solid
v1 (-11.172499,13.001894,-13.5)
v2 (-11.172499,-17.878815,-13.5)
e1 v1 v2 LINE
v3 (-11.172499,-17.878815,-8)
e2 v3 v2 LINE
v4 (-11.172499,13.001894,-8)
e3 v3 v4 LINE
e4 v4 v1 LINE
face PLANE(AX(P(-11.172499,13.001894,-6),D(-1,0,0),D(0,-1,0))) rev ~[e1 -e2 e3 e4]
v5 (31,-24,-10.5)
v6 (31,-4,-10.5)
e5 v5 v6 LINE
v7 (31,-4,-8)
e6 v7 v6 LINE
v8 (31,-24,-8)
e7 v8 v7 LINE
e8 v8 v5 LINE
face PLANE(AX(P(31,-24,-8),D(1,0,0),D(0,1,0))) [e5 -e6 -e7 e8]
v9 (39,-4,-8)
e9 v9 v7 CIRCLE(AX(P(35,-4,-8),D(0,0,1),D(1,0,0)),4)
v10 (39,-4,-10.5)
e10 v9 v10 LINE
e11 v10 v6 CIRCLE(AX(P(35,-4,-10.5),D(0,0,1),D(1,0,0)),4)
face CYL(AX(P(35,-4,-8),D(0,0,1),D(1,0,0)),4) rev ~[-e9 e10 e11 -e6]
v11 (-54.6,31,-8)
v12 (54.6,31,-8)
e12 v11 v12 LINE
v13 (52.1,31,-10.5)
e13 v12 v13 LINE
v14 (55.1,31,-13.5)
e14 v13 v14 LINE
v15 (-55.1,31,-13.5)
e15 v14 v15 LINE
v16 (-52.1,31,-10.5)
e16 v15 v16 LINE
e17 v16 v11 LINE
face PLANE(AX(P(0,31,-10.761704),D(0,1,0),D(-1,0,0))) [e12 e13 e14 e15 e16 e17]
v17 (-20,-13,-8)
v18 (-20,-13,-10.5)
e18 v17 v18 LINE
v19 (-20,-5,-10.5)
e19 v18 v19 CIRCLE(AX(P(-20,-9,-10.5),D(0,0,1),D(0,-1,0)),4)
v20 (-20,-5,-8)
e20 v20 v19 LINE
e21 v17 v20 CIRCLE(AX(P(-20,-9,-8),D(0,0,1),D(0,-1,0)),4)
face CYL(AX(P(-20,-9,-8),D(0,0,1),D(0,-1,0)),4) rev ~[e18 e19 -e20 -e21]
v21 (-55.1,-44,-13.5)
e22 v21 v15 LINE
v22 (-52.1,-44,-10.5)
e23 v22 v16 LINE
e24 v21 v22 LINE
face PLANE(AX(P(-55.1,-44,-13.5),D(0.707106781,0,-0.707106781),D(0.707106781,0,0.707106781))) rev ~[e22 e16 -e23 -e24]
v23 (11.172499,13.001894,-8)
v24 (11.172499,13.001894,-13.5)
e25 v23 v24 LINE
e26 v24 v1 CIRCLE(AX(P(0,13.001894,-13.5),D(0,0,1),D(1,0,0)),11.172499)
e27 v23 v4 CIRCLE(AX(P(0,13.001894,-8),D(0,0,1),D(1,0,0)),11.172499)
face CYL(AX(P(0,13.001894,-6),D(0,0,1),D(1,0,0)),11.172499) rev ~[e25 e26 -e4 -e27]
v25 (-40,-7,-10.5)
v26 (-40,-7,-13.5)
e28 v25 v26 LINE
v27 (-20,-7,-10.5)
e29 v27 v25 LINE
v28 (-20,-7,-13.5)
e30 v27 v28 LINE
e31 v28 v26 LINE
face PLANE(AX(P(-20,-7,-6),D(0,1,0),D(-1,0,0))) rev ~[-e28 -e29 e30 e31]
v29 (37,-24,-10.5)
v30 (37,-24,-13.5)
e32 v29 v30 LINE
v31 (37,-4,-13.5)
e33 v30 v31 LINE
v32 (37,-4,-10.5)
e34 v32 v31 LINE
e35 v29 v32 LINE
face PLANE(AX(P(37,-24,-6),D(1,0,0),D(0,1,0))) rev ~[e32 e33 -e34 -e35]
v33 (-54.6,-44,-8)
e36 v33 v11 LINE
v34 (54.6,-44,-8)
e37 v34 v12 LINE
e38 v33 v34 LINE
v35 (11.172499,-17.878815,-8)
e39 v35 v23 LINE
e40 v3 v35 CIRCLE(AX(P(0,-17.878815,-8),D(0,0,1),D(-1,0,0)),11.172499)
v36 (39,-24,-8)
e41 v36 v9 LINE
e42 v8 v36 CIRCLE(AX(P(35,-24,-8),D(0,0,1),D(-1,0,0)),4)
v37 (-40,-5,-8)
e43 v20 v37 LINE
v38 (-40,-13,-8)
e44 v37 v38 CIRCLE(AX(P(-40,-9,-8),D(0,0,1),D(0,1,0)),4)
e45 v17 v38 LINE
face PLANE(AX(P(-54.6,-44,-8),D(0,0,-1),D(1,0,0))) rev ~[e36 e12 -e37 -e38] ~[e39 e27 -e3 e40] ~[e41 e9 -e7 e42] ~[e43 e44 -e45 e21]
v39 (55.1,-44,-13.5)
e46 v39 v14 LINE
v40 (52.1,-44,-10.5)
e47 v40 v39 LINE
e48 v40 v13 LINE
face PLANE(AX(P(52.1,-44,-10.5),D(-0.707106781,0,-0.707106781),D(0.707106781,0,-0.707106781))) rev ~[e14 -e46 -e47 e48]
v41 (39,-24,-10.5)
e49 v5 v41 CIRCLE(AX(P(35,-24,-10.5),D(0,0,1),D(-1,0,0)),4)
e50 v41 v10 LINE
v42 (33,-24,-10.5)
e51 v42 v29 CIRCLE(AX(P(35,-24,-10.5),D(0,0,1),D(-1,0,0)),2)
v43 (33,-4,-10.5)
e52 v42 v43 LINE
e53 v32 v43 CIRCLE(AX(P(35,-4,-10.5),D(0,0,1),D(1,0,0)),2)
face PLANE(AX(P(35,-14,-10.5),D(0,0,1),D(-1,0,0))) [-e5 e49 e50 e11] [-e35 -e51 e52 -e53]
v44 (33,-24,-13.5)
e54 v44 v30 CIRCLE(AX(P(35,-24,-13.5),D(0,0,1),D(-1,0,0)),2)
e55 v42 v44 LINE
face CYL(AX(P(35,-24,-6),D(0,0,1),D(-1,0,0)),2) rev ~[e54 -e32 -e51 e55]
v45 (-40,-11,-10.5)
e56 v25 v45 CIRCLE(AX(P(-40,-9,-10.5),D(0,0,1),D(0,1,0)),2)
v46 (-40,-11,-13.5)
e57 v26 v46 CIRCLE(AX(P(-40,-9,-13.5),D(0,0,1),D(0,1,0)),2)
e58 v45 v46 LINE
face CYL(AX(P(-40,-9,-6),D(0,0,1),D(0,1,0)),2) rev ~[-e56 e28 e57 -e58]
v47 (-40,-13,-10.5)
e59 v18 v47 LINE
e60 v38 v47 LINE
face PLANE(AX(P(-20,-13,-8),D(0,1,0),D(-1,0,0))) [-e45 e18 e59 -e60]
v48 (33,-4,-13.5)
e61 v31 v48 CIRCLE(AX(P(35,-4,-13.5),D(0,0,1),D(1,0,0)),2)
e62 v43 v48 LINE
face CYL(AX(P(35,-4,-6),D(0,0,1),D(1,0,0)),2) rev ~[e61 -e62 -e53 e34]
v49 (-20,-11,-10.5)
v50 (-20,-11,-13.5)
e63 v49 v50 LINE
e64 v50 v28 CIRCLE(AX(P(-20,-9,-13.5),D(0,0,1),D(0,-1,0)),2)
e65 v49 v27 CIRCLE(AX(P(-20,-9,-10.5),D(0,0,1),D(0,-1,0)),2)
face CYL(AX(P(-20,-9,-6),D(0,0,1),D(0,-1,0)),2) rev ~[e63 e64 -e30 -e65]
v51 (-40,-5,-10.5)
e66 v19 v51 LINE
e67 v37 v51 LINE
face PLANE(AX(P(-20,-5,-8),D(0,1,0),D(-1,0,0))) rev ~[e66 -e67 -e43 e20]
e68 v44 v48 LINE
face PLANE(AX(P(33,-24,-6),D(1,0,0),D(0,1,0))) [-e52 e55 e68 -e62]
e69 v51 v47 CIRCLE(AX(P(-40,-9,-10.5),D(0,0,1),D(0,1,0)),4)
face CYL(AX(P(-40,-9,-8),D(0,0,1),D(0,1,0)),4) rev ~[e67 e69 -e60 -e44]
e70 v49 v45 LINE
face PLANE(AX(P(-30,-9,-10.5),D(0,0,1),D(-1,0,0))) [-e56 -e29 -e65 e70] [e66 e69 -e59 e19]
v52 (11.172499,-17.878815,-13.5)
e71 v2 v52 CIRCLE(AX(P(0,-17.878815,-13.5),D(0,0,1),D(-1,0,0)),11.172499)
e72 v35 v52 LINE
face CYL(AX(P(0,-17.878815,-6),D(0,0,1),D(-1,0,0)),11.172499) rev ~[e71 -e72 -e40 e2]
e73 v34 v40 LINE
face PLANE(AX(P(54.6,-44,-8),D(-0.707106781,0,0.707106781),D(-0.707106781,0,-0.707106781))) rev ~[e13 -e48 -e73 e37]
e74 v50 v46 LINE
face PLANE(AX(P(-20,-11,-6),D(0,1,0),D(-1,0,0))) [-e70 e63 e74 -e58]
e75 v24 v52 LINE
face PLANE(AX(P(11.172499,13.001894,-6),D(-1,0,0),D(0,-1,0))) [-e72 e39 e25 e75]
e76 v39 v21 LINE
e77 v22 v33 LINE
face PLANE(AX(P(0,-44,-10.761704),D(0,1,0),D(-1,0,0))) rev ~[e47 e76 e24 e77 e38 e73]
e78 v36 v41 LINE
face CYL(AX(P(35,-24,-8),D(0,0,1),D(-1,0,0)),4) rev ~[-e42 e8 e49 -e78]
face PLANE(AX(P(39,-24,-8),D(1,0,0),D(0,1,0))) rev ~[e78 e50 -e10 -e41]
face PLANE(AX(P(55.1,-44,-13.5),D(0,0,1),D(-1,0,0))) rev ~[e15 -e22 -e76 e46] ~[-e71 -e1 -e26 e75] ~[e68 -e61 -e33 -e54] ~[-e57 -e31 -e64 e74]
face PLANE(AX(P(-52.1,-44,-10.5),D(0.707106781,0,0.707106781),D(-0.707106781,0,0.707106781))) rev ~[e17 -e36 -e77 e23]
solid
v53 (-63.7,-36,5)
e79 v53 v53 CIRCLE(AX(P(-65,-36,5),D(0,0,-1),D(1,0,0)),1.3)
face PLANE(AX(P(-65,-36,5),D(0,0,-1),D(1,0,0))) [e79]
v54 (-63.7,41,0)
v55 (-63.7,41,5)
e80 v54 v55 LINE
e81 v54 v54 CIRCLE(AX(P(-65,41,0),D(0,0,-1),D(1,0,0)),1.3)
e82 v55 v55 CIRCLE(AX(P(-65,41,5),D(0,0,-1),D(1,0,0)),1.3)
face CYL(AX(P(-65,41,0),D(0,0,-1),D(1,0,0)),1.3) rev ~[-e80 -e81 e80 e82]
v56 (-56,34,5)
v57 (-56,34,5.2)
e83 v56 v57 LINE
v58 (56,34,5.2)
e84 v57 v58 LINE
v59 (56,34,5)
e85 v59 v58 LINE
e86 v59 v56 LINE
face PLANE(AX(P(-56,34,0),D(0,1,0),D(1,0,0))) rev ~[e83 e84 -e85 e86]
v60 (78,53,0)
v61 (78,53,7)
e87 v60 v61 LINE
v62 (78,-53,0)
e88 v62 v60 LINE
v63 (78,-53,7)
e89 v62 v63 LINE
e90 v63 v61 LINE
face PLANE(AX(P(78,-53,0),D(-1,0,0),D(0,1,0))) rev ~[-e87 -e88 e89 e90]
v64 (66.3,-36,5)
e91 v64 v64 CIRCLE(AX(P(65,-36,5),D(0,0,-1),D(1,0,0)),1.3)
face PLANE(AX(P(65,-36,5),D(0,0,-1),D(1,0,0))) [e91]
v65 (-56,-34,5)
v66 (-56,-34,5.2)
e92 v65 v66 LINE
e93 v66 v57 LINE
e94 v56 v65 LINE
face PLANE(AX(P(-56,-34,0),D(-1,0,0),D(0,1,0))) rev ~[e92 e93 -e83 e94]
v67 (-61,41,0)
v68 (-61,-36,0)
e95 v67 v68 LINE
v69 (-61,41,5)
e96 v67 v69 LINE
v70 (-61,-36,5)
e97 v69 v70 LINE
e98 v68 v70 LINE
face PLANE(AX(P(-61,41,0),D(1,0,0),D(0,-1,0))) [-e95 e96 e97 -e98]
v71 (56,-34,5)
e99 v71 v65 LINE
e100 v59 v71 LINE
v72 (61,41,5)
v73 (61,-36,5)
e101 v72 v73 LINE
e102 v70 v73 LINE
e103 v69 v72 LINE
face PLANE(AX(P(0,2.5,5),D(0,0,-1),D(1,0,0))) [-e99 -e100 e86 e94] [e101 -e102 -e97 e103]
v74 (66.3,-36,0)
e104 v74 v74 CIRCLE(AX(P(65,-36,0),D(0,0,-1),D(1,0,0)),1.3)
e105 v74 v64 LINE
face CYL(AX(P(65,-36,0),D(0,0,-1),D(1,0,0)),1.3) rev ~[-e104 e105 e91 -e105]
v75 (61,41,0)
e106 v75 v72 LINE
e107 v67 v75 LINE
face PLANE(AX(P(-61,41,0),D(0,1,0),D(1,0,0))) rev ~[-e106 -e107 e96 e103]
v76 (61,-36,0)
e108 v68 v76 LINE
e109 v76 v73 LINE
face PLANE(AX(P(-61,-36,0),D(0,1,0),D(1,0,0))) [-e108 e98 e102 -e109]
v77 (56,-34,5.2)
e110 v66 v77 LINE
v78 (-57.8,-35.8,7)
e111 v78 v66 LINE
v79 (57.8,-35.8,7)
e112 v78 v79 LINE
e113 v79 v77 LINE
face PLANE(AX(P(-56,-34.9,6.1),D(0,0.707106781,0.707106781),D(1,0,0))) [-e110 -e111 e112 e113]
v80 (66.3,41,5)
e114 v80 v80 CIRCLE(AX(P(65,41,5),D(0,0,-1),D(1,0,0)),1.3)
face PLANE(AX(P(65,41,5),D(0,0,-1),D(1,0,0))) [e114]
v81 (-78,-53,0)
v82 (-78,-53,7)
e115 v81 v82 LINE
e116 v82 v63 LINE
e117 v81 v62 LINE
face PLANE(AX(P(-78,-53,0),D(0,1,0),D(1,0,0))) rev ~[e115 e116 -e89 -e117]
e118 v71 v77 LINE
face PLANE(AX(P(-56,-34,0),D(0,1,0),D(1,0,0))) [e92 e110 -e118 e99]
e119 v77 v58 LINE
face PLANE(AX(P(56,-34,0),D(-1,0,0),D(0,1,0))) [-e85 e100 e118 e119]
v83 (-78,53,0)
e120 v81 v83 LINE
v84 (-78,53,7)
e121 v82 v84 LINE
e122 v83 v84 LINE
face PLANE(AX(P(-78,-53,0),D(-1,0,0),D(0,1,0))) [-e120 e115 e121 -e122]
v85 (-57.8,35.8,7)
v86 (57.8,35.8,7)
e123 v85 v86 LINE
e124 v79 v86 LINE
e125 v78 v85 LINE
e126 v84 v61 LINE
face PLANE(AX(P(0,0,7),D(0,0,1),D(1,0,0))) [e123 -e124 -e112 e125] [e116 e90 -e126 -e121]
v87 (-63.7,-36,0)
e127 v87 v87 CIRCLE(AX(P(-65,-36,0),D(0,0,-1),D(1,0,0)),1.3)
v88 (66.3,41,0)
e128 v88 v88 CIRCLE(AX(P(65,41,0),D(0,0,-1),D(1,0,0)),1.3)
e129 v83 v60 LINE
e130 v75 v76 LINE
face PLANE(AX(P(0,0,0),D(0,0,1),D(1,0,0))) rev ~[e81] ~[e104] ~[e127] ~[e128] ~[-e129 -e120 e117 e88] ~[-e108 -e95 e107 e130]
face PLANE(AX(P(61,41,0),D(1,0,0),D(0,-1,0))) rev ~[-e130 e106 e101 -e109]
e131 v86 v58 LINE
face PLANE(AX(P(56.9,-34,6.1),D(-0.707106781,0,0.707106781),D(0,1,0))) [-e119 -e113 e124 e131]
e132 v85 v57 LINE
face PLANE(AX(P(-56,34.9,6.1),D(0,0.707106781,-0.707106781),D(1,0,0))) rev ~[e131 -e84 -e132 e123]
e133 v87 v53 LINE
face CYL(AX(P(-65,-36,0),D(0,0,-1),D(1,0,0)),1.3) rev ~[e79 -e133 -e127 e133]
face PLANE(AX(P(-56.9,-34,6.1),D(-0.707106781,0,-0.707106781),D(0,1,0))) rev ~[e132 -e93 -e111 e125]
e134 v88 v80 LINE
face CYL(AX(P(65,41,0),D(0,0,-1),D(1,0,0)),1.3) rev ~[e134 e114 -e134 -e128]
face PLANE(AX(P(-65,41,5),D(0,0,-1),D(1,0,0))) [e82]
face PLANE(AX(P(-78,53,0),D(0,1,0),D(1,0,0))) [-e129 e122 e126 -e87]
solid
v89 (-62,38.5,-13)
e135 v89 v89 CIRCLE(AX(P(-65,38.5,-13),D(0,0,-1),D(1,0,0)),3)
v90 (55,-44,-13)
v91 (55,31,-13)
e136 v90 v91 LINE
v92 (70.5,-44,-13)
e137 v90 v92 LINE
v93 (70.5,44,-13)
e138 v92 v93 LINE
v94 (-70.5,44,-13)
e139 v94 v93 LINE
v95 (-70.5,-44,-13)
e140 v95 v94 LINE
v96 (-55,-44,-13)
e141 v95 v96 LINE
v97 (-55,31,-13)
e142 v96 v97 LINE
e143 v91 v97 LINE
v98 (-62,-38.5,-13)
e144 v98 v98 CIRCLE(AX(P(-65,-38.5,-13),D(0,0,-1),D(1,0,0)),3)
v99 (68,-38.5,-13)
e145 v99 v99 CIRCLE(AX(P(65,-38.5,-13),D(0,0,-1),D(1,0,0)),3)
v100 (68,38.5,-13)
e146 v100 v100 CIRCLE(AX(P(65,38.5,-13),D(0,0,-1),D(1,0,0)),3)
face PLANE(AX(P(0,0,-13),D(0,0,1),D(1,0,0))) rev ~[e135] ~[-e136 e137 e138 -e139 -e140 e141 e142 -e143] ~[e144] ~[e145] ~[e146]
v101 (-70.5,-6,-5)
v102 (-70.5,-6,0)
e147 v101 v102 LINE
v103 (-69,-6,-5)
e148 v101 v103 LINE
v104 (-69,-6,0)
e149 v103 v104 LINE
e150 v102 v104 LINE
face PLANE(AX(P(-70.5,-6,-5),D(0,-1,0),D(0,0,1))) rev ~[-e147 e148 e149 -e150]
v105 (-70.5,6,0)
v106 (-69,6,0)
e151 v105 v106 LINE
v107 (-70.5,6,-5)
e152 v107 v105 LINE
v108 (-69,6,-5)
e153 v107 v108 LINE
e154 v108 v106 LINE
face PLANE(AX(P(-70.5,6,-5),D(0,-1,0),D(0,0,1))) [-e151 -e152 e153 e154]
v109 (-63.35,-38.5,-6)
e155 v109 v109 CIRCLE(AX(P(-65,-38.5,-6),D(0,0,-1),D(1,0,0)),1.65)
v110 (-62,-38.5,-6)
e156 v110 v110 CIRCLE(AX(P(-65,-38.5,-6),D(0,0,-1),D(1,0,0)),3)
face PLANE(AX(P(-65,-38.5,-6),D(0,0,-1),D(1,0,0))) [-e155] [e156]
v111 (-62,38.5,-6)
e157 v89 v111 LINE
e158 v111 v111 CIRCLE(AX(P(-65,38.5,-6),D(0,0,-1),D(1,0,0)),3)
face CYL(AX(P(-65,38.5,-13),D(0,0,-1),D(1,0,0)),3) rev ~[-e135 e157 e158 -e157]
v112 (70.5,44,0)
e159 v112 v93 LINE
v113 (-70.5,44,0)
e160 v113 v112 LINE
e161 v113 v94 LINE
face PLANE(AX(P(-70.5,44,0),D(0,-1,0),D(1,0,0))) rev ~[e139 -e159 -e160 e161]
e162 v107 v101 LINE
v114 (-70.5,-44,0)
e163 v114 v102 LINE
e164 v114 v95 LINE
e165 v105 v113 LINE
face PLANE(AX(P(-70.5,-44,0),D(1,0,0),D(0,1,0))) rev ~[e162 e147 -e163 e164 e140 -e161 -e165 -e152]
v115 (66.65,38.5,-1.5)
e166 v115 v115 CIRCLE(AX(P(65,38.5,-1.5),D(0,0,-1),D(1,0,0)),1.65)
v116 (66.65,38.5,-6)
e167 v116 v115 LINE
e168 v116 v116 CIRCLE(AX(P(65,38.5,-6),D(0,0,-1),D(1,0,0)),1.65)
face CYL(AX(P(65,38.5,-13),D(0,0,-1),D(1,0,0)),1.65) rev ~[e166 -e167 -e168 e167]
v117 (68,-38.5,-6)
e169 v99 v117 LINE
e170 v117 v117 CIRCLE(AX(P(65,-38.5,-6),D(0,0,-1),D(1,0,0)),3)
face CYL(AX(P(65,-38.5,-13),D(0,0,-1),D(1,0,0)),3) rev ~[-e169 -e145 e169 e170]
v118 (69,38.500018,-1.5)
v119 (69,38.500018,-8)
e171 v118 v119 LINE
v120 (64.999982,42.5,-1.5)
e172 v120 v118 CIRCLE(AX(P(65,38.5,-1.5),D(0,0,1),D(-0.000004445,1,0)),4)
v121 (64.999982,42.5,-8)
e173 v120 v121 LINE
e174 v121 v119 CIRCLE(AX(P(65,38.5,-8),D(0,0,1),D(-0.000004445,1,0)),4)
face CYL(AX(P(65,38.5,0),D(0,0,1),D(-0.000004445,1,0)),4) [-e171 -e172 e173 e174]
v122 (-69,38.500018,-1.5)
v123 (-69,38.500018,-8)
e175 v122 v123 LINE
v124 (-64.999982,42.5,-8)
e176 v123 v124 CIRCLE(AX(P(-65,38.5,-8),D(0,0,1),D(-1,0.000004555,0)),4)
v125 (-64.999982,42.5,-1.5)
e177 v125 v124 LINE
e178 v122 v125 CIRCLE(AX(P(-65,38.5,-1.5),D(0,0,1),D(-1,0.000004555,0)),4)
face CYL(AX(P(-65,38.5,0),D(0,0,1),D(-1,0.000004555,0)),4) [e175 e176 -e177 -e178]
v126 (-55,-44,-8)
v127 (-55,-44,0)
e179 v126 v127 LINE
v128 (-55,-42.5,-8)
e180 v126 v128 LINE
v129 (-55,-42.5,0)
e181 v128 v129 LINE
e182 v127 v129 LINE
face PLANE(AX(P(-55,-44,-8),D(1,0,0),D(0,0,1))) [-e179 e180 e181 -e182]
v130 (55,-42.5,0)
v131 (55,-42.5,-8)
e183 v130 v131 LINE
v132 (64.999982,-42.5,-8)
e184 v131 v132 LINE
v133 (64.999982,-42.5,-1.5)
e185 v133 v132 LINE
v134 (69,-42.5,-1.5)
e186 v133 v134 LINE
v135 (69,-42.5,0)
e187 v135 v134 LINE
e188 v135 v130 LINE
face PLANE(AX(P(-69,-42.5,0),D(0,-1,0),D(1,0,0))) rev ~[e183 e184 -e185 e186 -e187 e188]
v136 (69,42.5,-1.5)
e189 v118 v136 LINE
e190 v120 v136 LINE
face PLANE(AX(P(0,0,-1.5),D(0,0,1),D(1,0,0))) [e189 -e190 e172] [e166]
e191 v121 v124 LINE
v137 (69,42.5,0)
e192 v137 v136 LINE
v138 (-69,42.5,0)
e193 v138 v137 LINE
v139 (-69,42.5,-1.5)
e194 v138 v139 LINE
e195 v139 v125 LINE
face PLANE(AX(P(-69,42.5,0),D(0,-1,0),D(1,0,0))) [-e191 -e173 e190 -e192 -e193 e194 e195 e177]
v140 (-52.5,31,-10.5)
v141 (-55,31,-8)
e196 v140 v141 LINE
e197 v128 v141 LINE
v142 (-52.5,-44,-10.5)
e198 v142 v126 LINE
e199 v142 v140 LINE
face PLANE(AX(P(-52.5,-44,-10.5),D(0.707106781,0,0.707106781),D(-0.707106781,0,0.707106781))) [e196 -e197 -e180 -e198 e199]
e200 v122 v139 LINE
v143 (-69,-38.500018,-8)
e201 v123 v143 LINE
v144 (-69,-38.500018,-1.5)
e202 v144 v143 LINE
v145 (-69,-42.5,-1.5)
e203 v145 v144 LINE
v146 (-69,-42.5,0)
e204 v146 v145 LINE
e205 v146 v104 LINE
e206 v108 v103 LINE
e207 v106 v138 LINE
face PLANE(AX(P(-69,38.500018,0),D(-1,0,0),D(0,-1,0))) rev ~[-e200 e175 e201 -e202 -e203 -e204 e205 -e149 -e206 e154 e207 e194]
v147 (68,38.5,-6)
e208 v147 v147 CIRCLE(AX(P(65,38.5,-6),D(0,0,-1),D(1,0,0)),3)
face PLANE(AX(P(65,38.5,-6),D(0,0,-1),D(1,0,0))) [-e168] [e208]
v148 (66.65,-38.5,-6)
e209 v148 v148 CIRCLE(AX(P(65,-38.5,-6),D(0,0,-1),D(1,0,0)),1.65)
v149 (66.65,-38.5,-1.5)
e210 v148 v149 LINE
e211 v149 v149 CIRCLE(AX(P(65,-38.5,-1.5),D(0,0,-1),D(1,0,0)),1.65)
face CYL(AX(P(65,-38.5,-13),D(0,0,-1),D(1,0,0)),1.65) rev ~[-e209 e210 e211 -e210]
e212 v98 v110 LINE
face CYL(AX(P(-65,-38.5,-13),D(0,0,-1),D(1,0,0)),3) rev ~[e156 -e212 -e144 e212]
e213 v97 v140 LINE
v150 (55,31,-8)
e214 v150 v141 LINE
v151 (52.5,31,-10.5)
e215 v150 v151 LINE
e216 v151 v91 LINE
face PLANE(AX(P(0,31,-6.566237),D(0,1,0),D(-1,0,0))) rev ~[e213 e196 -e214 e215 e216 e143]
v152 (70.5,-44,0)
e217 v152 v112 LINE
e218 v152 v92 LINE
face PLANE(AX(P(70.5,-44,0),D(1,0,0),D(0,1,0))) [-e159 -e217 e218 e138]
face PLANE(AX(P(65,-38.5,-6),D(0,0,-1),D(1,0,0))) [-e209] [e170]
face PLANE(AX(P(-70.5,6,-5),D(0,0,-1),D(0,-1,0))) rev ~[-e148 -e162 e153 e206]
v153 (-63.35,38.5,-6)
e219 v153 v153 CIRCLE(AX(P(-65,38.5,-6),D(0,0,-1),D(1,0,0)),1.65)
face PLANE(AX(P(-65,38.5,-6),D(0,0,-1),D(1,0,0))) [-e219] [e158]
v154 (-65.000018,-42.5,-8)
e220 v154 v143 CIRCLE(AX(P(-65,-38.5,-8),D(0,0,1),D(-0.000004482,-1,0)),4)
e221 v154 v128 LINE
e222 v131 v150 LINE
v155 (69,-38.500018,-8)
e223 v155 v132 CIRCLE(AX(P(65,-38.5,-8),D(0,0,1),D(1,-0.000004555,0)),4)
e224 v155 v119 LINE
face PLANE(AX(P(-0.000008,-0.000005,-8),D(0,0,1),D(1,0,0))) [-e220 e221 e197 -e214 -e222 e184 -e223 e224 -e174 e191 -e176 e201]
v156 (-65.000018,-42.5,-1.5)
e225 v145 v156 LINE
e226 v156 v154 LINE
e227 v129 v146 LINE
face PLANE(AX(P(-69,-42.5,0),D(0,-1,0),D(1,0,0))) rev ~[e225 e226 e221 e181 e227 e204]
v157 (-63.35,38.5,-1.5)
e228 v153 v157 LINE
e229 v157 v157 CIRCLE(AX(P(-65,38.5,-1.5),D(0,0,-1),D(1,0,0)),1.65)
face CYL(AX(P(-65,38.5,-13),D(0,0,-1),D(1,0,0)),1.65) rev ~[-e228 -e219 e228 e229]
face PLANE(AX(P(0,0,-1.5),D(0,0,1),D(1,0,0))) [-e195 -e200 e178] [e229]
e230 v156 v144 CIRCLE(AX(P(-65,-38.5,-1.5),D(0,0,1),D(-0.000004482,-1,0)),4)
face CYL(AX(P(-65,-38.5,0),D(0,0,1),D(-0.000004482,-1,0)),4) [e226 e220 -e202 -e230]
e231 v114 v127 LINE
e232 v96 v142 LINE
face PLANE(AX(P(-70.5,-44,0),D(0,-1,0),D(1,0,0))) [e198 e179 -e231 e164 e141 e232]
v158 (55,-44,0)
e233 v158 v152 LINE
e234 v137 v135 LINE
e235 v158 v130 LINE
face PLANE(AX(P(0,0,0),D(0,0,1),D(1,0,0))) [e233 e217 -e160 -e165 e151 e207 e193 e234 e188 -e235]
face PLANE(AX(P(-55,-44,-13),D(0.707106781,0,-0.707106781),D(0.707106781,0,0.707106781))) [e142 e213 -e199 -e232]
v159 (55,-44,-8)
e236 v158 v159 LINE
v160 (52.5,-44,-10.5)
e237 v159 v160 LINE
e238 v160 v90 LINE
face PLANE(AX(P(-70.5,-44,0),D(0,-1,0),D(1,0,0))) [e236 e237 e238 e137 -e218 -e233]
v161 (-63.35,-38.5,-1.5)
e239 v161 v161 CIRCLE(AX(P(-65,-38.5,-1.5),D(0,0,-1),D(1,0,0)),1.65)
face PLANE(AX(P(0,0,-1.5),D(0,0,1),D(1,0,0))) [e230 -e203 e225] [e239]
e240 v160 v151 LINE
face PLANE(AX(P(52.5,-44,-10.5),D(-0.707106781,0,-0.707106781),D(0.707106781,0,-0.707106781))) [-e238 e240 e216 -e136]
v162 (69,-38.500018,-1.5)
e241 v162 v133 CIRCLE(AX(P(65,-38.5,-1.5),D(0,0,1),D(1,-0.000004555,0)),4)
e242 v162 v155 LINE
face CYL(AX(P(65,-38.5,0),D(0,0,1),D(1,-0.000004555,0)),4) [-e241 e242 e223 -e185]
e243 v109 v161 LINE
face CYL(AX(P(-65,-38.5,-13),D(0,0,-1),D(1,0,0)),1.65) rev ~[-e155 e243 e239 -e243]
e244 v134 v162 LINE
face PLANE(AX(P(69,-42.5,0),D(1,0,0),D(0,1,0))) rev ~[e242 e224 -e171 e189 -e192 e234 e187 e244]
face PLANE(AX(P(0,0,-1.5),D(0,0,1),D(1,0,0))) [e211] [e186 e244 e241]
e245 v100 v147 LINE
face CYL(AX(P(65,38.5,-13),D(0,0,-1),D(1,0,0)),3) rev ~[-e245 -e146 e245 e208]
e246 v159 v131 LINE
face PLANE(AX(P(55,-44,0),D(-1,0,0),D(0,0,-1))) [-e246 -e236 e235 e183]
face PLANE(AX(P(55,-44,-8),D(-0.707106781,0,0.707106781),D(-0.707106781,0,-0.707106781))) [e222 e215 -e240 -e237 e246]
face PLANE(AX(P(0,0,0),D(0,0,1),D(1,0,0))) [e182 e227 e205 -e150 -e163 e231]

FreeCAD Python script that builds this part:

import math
import FreeCAD as App
import Part
import Sketcher
Q = App.Units.Quantity


def edges_at(feature, points):
    """Names of the edges that pass closest to the given points."""
    edges = feature.Shape.Edges
    near = lambda p: min(range(len(edges)), key=lambda i: edges[i].distToShape(Part.Vertex(*p))[0])
    return sorted({f"Edge{near(p) + 1}" for p in points})


def add_polygon(sketch, points):
    """Adds a closed chain of lines whose ends are joined by coincident constraints."""
    first, n = sketch.GeometryCount, len(points)
    for a, b in zip(points, points[1:] + points[:1]):
        sketch.addGeometry(Part.LineSegment(App.Vector(*a, 0), App.Vector(*b, 0)), False)
    for i in range(n):
        sketch.addConstraint(Sketcher.Constraint("Coincident", first + i, 2, first + (i + 1) % n, 1))

doc = App.newDocument("Part")
params = doc.addObject("Spreadsheet::Sheet", "Params")
for row, (alias, value) in enumerate([
    ("sketch1_width", "156 mm"),
    ("sketch1_width2", "112 mm"),
    ("sketch1_height", "106 mm"),
    ("sketch1_height2", "68 mm"),
    ("pad1_length", "7 mm"),
    ("sketch2_diameter", "2.6 mm"),
    ("sketch2_width", "122 mm"),
    ("sketch2_height", "77 mm"),
    ("pocket1_length", "5 mm"),
    ("chamfer_size", "1.8 mm"),
    ("sketch3_width", "141 mm"),
    ("sketch3_height", "88 mm"),
    ("pad2_length", "13 mm"),
    ("sketch4_radius", "4 mm"),
    ("sketch4_width", "130 mm"),
    ("pocket2_length", "8 mm"),
    ("sketch5_width", "138 mm"),
    ("sketch5_height", "85 mm"),
    ("pocket3_length", "1.5 mm"),
    ("sketch6_diameter", "3.3 mm"),
    ("sketch7_diameter", "6 mm"),
    ("pocket5_length", "7 mm"),
    ("sketch8_width", "110 mm"),
    ("sketch8_height", "8 mm"),
    ("pocket6_length", "75 mm"),
    ("sketch9_width", "12 mm"),
    ("sketch9_height", "5 mm"),
    ("pocket7_length", "1.5 mm"),
    ("sketch10_width", "109.2 mm"),
    ("sketch10_width2", "110.2 mm"),
    ("pad3_length", "75 mm"),
    ("sketch11_radius", "4 mm"),
    ("sketch11_width", "20 mm"),
    ("pocket8_length", "2.5 mm"),
    ("sketch12_radius", "2 mm"),
    ("sketch12_width", "20 mm"),
], start=1):
    params.set(f"A{row}", alias)
    params.set(f"B{row}", "=" + value)
    params.setAlias(f"B{row}", alias)

body = doc.addObject("PartDesign::Body", "Body")

sketch1 = body.newObject("Sketcher::SketchObject", "Sketch")
sketch1.AttachmentSupport = (doc.getObject("XY_Plane"), [""])
sketch1.MapMode = "FlatFace"
add_polygon(sketch1, [(-78, 53), (-78, -53), (78, -53), (78, 53)])
add_polygon(sketch1, [(56, -34), (-56, -34), (-56, 34), (56, 34)])
sketch1.addConstraint(Sketcher.Constraint("Vertical", 0))
sketch1.addConstraint(Sketcher.Constraint("Horizontal", 1))
sketch1.addConstraint(Sketcher.Constraint("Vertical", 2))
sketch1.addConstraint(Sketcher.Constraint("Horizontal", 3))
sketch1.addConstraint(Sketcher.Constraint("Horizontal", 4))
sketch1.addConstraint(Sketcher.Constraint("Vertical", 5))
sketch1.addConstraint(Sketcher.Constraint("Horizontal", 6))
sketch1.addConstraint(Sketcher.Constraint("Vertical", 7))
sketch1.addConstraint(Sketcher.Constraint("Symmetric", 0, 2, 2, 2, -1, 1))
sketch1.addConstraint(Sketcher.Constraint("Symmetric", 4, 2, 6, 2, -1, 1))
sketch1.addConstraint(Sketcher.Constraint("DistanceX", 1, 1, 1, 2, Q("156 mm")))
sketch1.addConstraint(Sketcher.Constraint("DistanceX", 4, 2, 4, 1, Q("112 mm")))
sketch1.addConstraint(Sketcher.Constraint("DistanceY", 0, 2, 0, 1, Q("106 mm")))
sketch1.addConstraint(Sketcher.Constraint("DistanceY", 5, 1, 5, 2, Q("68 mm")))
sketch1.setExpression("Constraints[18]", "Params.sketch1_width")
sketch1.setExpression("Constraints[19]", "Params.sketch1_width2")
sketch1.setExpression("Constraints[20]", "Params.sketch1_height")
sketch1.setExpression("Constraints[21]", "Params.sketch1_height2")
pad1 = body.newObject("PartDesign::Pad", "Pad")
pad1.Profile = sketch1
pad1.setExpression("Length", "Params.pad1_length")

sketch2 = body.newObject("Sketcher::SketchObject", "Sketch001")
sketch2.AttachmentSupport = (doc.getObject("XY_Plane"), [""])
sketch2.MapMode = "FlatFace"
sketch2.addGeometry(Part.Circle(App.Vector(-65, -36, 0), App.Vector(0, 0, 1), 1.3), False)
sketch2.addGeometry(Part.Circle(App.Vector(65, -36, 0), App.Vector(0, 0, 1), 1.3), False)
sketch2.addGeometry(Part.Circle(App.Vector(-65, 41, 0), App.Vector(0, 0, 1), 1.3), False)
sketch2.addGeometry(Part.Circle(App.Vector(65, 41, 0), App.Vector(0, 0, 1), 1.3), False)
add_polygon(sketch2, [(-61, -36), (-61, 41), (61, 41), (61, -36)])
sketch2.addConstraint(Sketcher.Constraint("Vertical", 4))
sketch2.addConstraint(Sketcher.Constraint("Horizontal", 5))
sketch2.addConstraint(Sketcher.Constraint("Vertical", 6))
sketch2.addConstraint(Sketcher.Constraint("Horizontal", 7))
sketch2.addConstraint(Sketcher.Constraint("Equal", 0, 1))
sketch2.addConstraint(Sketcher.Constraint("Equal", 1, 2))
sketch2.addConstraint(Sketcher.Constraint("Equal", 2, 3))
sketch2.addConstraint(Sketcher.Constraint("Symmetric", 0, 3, 1, 3, -2))
sketch2.addConstraint(Sketcher.Constraint("Symmetric", 2, 3, 3, 3, -2))
sketch2.addConstraint(Sketcher.Constraint("Horizontal", 3, 3, 4, 2))
sketch2.addConstraint(Sketcher.Constraint("Horizontal", 1, 3, 6, 2))
sketch2.addConstraint(Sketcher.Constraint("Vertical", 0, 3, 2, 3))
sketch2.addConstraint(Sketcher.Constraint("Diameter", 0, Q("2.6 mm")))
sketch2.addConstraint(Sketcher.Constraint("DistanceX", 5, 1, 5, 2, Q("122 mm")))
sketch2.addConstraint(Sketcher.Constraint("DistanceY", 4, 1, 4, 2, Q("77 mm")))
sketch2.addConstraint(Sketcher.Constraint("DistanceX", 0, 3, -1, 1, Q("65 mm")))
sketch2.addConstraint(Sketcher.Constraint("DistanceY", 0, 3, -1, 1, Q("36 mm")))
sketch2.addConstraint(Sketcher.Constraint("DistanceX", 4, 2, -1, 1, Q("61 mm")))
sketch2.setExpression("Constraints[16]", "Params.sketch2_diameter")
sketch2.setExpression("Constraints[17]", "Params.sketch2_width")
sketch2.setExpression("Constraints[18]", "Params.sketch2_height")
pocket1 = body.newObject("PartDesign::Pocket", "Pocket")
pocket1.Profile = sketch2
pocket1.setExpression("Length", "Params.pocket1_length")
pocket1.Reversed = True
doc.recompute()

chamfer = body.newObject("PartDesign::Chamfer", "Chamfer")
chamfer.Base = (pocket1, edges_at(pocket1, [
    (-56, 0, 7),
    (0, 34, 7),
    (56, 0, 7),
    (0, -34, 7),
]))
chamfer.setExpression("Size", "Params.chamfer_size")
body2 = doc.addObject("PartDesign::Body", "Body001")

sketch3 = body2.newObject("Sketcher::SketchObject", "Sketch002")
sketch3.AttachmentSupport = (doc.getObject("XY_Plane001"), [""])
sketch3.MapMode = "FlatFace"
add_polygon(sketch3, [(-70, 44), (-70, -44), (70, -44), (70, 44)])
sketch3.addConstraint(Sketcher.Constraint("Vertical", 0))
sketch3.addConstraint(Sketcher.Constraint("Horizontal", 1))
sketch3.addConstraint(Sketcher.Constraint("Vertical", 2))
sketch3.addConstraint(Sketcher.Constraint("Horizontal", 3))
sketch3.addConstraint(Sketcher.Constraint("Symmetric", 0, 2, 2, 2, -1, 1))
sketch3.addConstraint(Sketcher.Constraint("DistanceX", 1, 1, 1, 2, Q("141 mm")))
sketch3.addConstraint(Sketcher.Constraint("DistanceY", 0, 2, 0, 1, Q("88 mm")))
sketch3.setExpression("Constraints[9]", "Params.sketch3_width")
sketch3.setExpression("Constraints[10]", "Params.sketch3_height")
pad2 = body2.newObject("PartDesign::Pad", "Pad001")
pad2.Profile = sketch3
pad2.setExpression("Length", "Params.pad2_length")
pad2.Reversed = True

sketch4 = body2.newObject("Sketcher::SketchObject", "Sketch003")
sketch4.AttachmentSupport = (doc.getObject("XY_Plane001"), [""])
sketch4.MapMode = "FlatFace"
sketch4.addGeometry(Part.LineSegment(App.Vector(-69, 38.5, 0), App.Vector(-69, -38.5, 0)), False)
sketch4.addGeometry(Part.ArcOfCircle(Part.Circle(App.Vector(-65, -38.5, 0), App.Vector(0, 0, 1), 4), math.radians(-90), math.radians(180)), False)
sketch4.addGeometry(Part.LineSegment(App.Vector(-65, -42.5, 0), App.Vector(65, -42.5, 0)), False)
sketch4.addGeometry(Part.ArcOfCircle(Part.Circle(App.Vector(65, -38.5, 0), App.Vector(0, 0, 1), 4), math.radians(0), math.radians(270)), False)
sketch4.addGeometry(Part.LineSegment(App.Vector(69, -38.5, 0), App.Vector(69, 38.5, 0)), False)
sketch4.addGeometry(Part.ArcOfCircle(Part.Circle(App.Vector(65, 38.5, 0), App.Vector(0, 0, 1), 4), math.radians(90), math.radians(360)), False)
sketch4.addGeometry(Part.LineSegment(App.Vector(65, 42.5, 0), App.Vector(-65, 42.5, 0)), False)
sketch4.addGeometry(Part.ArcOfCircle(Part.Circle(App.Vector(-65, 38.5, 0), App.Vector(0, 0, 1), 4), math.radians(180), math.radians(450)), False)
sketch4.addConstraint(Sketcher.Constraint("Coincident", 0, 2, 1, 2))
sketch4.addConstraint(Sketcher.Constraint("Coincident", 1, 1, 2, 1))
sketch4.addConstraint(Sketcher.Constraint("Coincident", 2, 2, 3, 2))
sketch4.addConstraint(Sketcher.Constraint("Coincident", 3, 1, 4, 1))
sketch4.addConstraint(Sketcher.Constraint("Coincident", 4, 2, 5, 2))
sketch4.addConstraint(Sketcher.Constraint("Coincident", 5, 1, 6, 1))
sketch4.addConstraint(Sketcher.Constraint("Coincident", 6, 2, 7, 2))
sketch4.addConstraint(Sketcher.Constraint("Coincident", 7, 1, 0, 1))
sketch4.addConstraint(Sketcher.Constraint("Vertical", 0))
sketch4.addConstraint(Sketcher.Constraint("Horizontal", 2))
sketch4.addConstraint(Sketcher.Constraint("Vertical", 4))
sketch4.addConstraint(Sketcher.Constraint("Horizontal", 6))
sketch4.addConstraint(Sketcher.Constraint("Equal", 1, 3))
sketch4.addConstraint(Sketcher.Constraint("Equal", 3, 5))
sketch4.addConstraint(Sketcher.Constraint("Equal", 5, 7))
sketch4.addConstraint(Sketcher.Constraint("Symmetric", 1, 3, 5, 3, -1, 1))
sketch4.addConstraint(Sketcher.Constraint("Horizontal", 0, 2, 3, 1))
sketch4.addConstraint(Sketcher.Constraint("Horizontal", 4, 2, 7, 1))
sketch4.addConstraint(Sketcher.Constraint("Vertical", 2, 2, 5, 1))
sketch4.addConstraint(Sketcher.Constraint("Radius", 1, Q("4 mm")))
sketch4.addConstraint(Sketcher.Constraint("DistanceX", 2, 1, 2, 2, Q("130 mm")))
sketch4.addConstraint(Sketcher.Constraint("DistanceX", 1, 3, -1, 1, Q("65 mm")))
sketch4.addConstraint(Sketcher.Constraint("DistanceY", 3, 3, 5, 3, Q("77 mm")))
sketch4.addConstraint(Sketcher.Constraint("DistanceX", 6, 2, 6, 1, Q("129.999964 mm")))
sketch4.addConstraint(Sketcher.Constraint("DistanceY", 0, 2, 0, 1, Q("77.000036 mm")))
sketch4.addConstraint(Sketcher.Constraint("DistanceY", 1, 1, 0, 2, Q("3.999982 mm")))
sketch4.addConstraint(Sketcher.Constraint("DistanceX", 0, 2, 2, 2, Q("133.999982 mm")))
sketch4.setExpression("Constraints[19]", "Params.sketch4_radius")
sketch4.setExpression("Constraints[20]", "Params.sketch4_width")
pocket2 = body2.newObject("PartDesign::Pocket", "Pocket001")
pocket2.Profile = sketch4
pocket2.setExpression("Length", "Params.pocket2_length")

sketch5 = body2.newObject("Sketcher::SketchObject", "Sketch004")
sketch5.AttachmentSupport = (doc.getObject("XY_Plane001"), [""])
sketch5.MapMode = "FlatFace"
add_polygon(sketch5, [(-69, 42), (-69, -42), (69, -42), (69, 42)])
sketch5.addConstraint(Sketcher.Constraint("Vertical", 0))
sketch5.addConstraint(Sketcher.Constraint("Horizontal", 1))
sketch5.addConstraint(Sketcher.Constraint("Vertical", 2))
sketch5.addConstraint(Sketcher.Constraint("Horizontal", 3))
sketch5.addConstraint(Sketcher.Constraint("Symmetric", 0, 2, 2, 2, -1, 1))
sketch5.addConstraint(Sketcher.Constraint("DistanceX", 1, 1, 1, 2, Q("138 mm")))
sketch5.addConstraint(Sketcher.Constraint("DistanceY", 0, 2, 0, 1, Q("85 mm")))
sketch5.setExpression("Constraints[9]", "Params.sketch5_width")
sketch5.setExpression("Constraints[10]", "Params.sketch5_height")
pocket3 = body2.newObject("PartDesign::Pocket", "Pocket002")
pocket3.Profile = sketch5
pocket3.setExpression("Length", "Params.pocket3_length")

sketch6 = body2.newObject("Sketcher::SketchObject", "Sketch005")
sketch6.AttachmentSupport = (doc.getObject("XY_Plane001"), [""])
sketch6.MapMode = "FlatFace"
sketch6.AttachmentOffset = App.Placement(App.Vector(0, 0, -13), App.Rotation())
sketch6.addGeometry(Part.Circle(App.Vector(-65, -38.5, 0), App.Vector(0, 0, 1), 1.6), False)
sketch6.addGeometry(Part.Circle(App.Vector(65, -38.5, 0), App.Vector(0, 0, 1), 1.6), False)
sketch6.addGeometry(Part.Circle(App.Vector(65, 38.5, 0), App.Vector(0, 0, 1), 1.6), False)
sketch6.addGeometry(Part.Circle(App.Vector(-65, 38.5, 0), App.Vector(0, 0, 1), 1.6), False)
sketch6.addConstraint(Sketcher.Constraint("Equal", 0, 1))
sketch6.addConstraint(Sketcher.Constraint("Equal", 1, 2))
sketch6.addConstraint(Sketcher.Constraint("Equal", 2, 3))
sketch6.addConstraint(Sketcher.Constraint("Symmetric", 0, 3, 2, 3, -1, 1))
sketch6.addConstraint(Sketcher.Constraint("Symmetric", 1, 3, 3, 3, -1, 1))
sketch6.addConstraint(Sketcher.Constraint("Symmetric", 0, 3, 1, 3, -2))
sketch6.addConstraint(Sketcher.Constraint("Diameter", 0, Q("3.3 mm")))
sketch6.addConstraint(Sketcher.Constraint("DistanceX", 0, 3, -1, 1, Q("65 mm")))
sketch6.addConstraint(Sketcher.Constraint("DistanceY", 1, 3, 2, 3, Q("77 mm")))
sketch6.setExpression("Constraints[6]", "Params.sketch6_diameter")
pocket4 = body2.newObject("PartDesign::Pocket", "Pocket003")
pocket4.Profile = sketch6
pocket4.Type = "ThroughAll"
pocket4.Reversed = True

sketch7 = body2.newObject("Sketcher::SketchObject", "Sketch006")
sketch7.AttachmentSupport = (doc.getObject("XY_Plane001"), [""])
sketch7.MapMode = "FlatFace"
sketch7.AttachmentOffset = App.Placement(App.Vector(0, 0, -13), App.Rotation())
sketch7.addGeometry(Part.Circle(App.Vector(-65, -38.5, 0), App.Vector(0, 0, 1), 3), False)
sketch7.addGeometry(Part.Circle(App.Vector(65, -38.5, 0), App.Vector(0, 0, 1), 3), False)
sketch7.addGeometry(Part.Circle(App.Vector(65, 38.5, 0), App.Vector(0, 0, 1), 3), False)
sketch7.addGeometry(Part.Circle(App.Vector(-65, 38.5, 0), App.Vector(0, 0, 1), 3), False)
sketch7.addConstraint(Sketcher.Constraint("Equal", 0, 1))
sketch7.addConstraint(Sketcher.Constraint("Equal", 1, 2))
sketch7.addConstraint(Sketcher.Constraint("Equal", 2, 3))
sketch7.addConstraint(Sketcher.Constraint("Symmetric", 0, 3, 2, 3, -1, 1))
sketch7.addConstraint(Sketcher.Constraint("Symmetric", 1, 3, 3, 3, -1, 1))
sketch7.addConstraint(Sketcher.Constraint("Symmetric", 0, 3, 1, 3, -2))
sketch7.addConstraint(Sketcher.Constraint("Diameter", 0, Q("6 mm")))
sketch7.addConstraint(Sketcher.Constraint("DistanceX", 0, 3, -1, 1, Q("65 mm")))
sketch7.addConstraint(Sketcher.Constraint("DistanceY", 1, 3, 2, 3, Q("77 mm")))
sketch7.setExpression("Constraints[6]", "Params.sketch7_diameter")
pocket5 = body2.newObject("PartDesign::Pocket", "Pocket004")
pocket5.Profile = sketch7
pocket5.setExpression("Length", "Params.pocket5_length")
pocket5.Reversed = True

sketch8 = body2.newObject("Sketcher::SketchObject", "Sketch007")
sketch8.AttachmentSupport = (doc.getObject("XZ_Plane001"), [""])
sketch8.MapMode = "FlatFace"
sketch8.AttachmentOffset = App.Placement(App.Vector(0, 0, 44), App.Rotation())
add_polygon(sketch8, [(-55, -8), (-52.5, -10.5), (-55, -13), (55, -13), (52.5, -10.5), (55, -8), (55, 0), (-55, 0)])
sketch8.addConstraint(Sketcher.Constraint("Horizontal", 2))
sketch8.addConstraint(Sketcher.Constraint("Vertical", 5))
sketch8.addConstraint(Sketcher.Constraint("Horizontal", 6))
sketch8.addConstraint(Sketcher.Constraint("Vertical", 7))
sketch8.addConstraint(Sketcher.Constraint("Symmetric", 5, 2, 6, 2, -1, 1))
sketch8.addConstraint(Sketcher.Constraint("Symmetric", 0, 2, 3, 2, -2))
sketch8.addConstraint(Sketcher.Constraint("Perpendicular", 0, 1))
sketch8.addConstraint(Sketcher.Constraint("Perpendicular", 1, 3))
sketch8.addConstraint(Sketcher.Constraint("Perpendicular", 3, 4))
sketch8.addConstraint(Sketcher.Constraint("Horizontal", 4, 2, 7, 2))
sketch8.addConstraint(Sketcher.Constraint("Vertical", 2, 2, 4, 2))
sketch8.addConstraint(Sketcher.Constraint("DistanceX", 2, 1, 2, 2, Q("110 mm")))
sketch8.addConstraint(Sketcher.Constraint("DistanceY", 5, 1, 5, 2, Q("8 mm")))
sketch8.addConstraint(Sketcher.Constraint("DistanceY", 1, 2, -1, 1, Q("13 mm")))
sketch8.setExpression("Constraints[19]", "Params.sketch8_width")
sketch8.setExpression("Constraints[20]", "Params.sketch8_height")
pocket6 = body2.newObject("PartDesign::Pocket", "Pocket005")
pocket6.Profile = sketch8
pocket6.setExpression("Length", "Params.pocket6_length")

sketch9 = body2.newObject("Sketcher::SketchObject", "Sketch008")
sketch9.AttachmentSupport = (doc.getObject("YZ_Plane001"), [""])
sketch9.MapMode = "FlatFace"
sketch9.AttachmentOffset = App.Placement(App.Vector(0, 0, -70.5), App.Rotation())
add_polygon(sketch9, [(6, 0), (6, -5), (-6, -5), (-6, 0)])
sketch9.addConstraint(Sketcher.Constraint("Vertical", 0))
sketch9.addConstraint(Sketcher.Constraint("Horizontal", 1))
sketch9.addConstraint(Sketcher.Constraint("Vertical", 2))
sketch9.addConstraint(Sketcher.Constraint("Horizontal", 3))
sketch9.addConstraint(Sketcher.Constraint("Symmetric", 2, 2, 3, 2, -1, 1))
sketch9.addConstraint(Sketcher.Constraint("DistanceX", 1, 2, 1, 1, Q("12 mm")))
sketch9.addConstraint(Sketcher.Constraint("DistanceY", 0, 2, 0, 1, Q("5 mm")))
sketch9.setExpression("Constraints[9]", "Params.sketch9_width")
sketch9.setExpression("Constraints[10]", "Params.sketch9_height")
pocket7 = body2.newObject("PartDesign::Pocket", "Pocket006")
pocket7.Profile = sketch9
pocket7.setExpression("Length", "Params.pocket7_length")
pocket7.Reversed = True
body3 = doc.addObject("PartDesign::Body", "Body002")

sketch10 = body3.newObject("Sketcher::SketchObject", "Sketch009")
sketch10.AttachmentSupport = (doc.getObject("XZ_Plane002"), [""])
sketch10.MapMode = "FlatFace"
sketch10.AttachmentOffset = App.Placement(App.Vector(0, 0, 44), App.Rotation())
add_polygon(sketch10, [(54.6, -8), (-54.6, -8), (-52.1, -10.5), (-55.1, -13.5), (55.1, -13.5), (52.1, -10.5)])
sketch10.addConstraint(Sketcher.Constraint("Horizontal", 0))
sketch10.addConstraint(Sketcher.Constraint("Horizontal", 3))
sketch10.addConstraint(Sketcher.Constraint("Symmetric", 1, 2, 4, 2, -2))
sketch10.addConstraint(Sketcher.Constraint("Perpendicular", 1, 2))
sketch10.addConstraint(Sketcher.Constraint("Perpendicular", 2, 4))
sketch10.addConstraint(Sketcher.Constraint("Perpendicular", 4, 5))
sketch10.addConstraint(Sketcher.Constraint("Equal", 2, 4))
sketch10.addConstraint(Sketcher.Constraint("DistanceX", 0, 2, 0, 1, Q("109.2 mm")))
sketch10.addConstraint(Sketcher.Constraint("DistanceX", 3, 1, 3, 2, Q("110.2 mm")))
sketch10.addConstraint(Sketcher.Constraint("DistanceY", 0, 2, -1, 1, Q("8 mm")))
sketch10.addConstraint(Sketcher.Constraint("DistanceX", 2, 2, 1, 2, Q("3 mm")))
sketch10.setExpression("Constraints[13]", "Params.sketch10_width")
sketch10.setExpression("Constraints[14]", "Params.sketch10_width2")
pad3 = body3.newObject("PartDesign::Pad", "Pad002")
pad3.Profile = sketch10
pad3.setExpression("Length", "Params.pad3_length")
pad3.Reversed = True

sketch11 = body3.newObject("Sketcher::SketchObject", "Sketch010")
sketch11.AttachmentSupport = (doc.getObject("XY_Plane002"), [""])
sketch11.MapMode = "FlatFace"
sketch11.AttachmentOffset = App.Placement(App.Vector(0, 0, -8), App.Rotation())
sketch11.addGeometry(Part.ArcOfCircle(Part.Circle(App.Vector(35, -24, 0), App.Vector(0, 0, 1), 4), math.radians(180), math.radians(360)), False)
sketch11.addGeometry(Part.LineSegment(App.Vector(39, -24, 0), App.Vector(39, -4, 0)), False)
sketch11.addGeometry(Part.ArcOfCircle(Part.Circle(App.Vector(35, -4, 0), App.Vector(0, 0, 1), 4), math.radians(0), math.radians(180)), False)
sketch11.addGeometry(Part.LineSegment(App.Vector(31, -4, 0), App.Vector(31, -24, 0)), False)
sketch11.addGeometry(Part.ArcOfCircle(Part.Circle(App.Vector(-20, -9, 0), App.Vector(0, 0, 1), 4), math.radians(-90), math.radians(90)), False)
sketch11.addGeometry(Part.LineSegment(App.Vector(-20, -5, 0), App.Vector(-40, -5, 0)), False)
sketch11.addGeometry(Part.ArcOfCircle(Part.Circle(App.Vector(-40, -9, 0), App.Vector(0, 0, 1), 4), math.radians(90), math.radians(270)), False)
sketch11.addGeometry(Part.LineSegment(App.Vector(-40, -13, 0), App.Vector(-20, -13, 0)), False)
sketch11.addConstraint(Sketcher.Constraint("Tangent", 0, 2, 1, 1))
sketch11.addConstraint(Sketcher.Constraint("Tangent", 1, 2, 2, 1))
sketch11.addConstraint(Sketcher.Constraint("Tangent", 2, 2, 3, 1))
sketch11.addConstraint(Sketcher.Constraint("Tangent", 3, 2, 0, 1))
sketch11.addConstraint(Sketcher.Constraint("Tangent", 4, 2, 5, 1))
sketch11.addConstraint(Sketcher.Constraint("Tangent", 5, 2, 6, 1))
sketch11.addConstraint(Sketcher.Constraint("Tangent", 6, 2, 7, 1))
sketch11.addConstraint(Sketcher.Constraint("Tangent", 7, 2, 4, 1))
sketch11.addConstraint(Sketcher.Constraint("Vertical", 1))
sketch11.addConstraint(Sketcher.Constraint("Vertical", 3))
sketch11.addConstraint(Sketcher.Constraint("Horizontal", 5))
sketch11.addConstraint(Sketcher.Constraint("Horizontal", 7))
sketch11.addConstraint(Sketcher.Constraint("Equal", 2, 4))
sketch11.addConstraint(Sketcher.Constraint("Equal", 7, 1))
sketch11.addConstraint(Sketcher.Constraint("Radius", 0, Q("4 mm")))
sketch11.addConstraint(Sketcher.Constraint("DistanceX", 5, 2, 5, 1, Q("20 mm")))
sketch11.addConstraint(Sketcher.Constraint("DistanceX", -1, 1, 0, 3, Q("35 mm")))
sketch11.addConstraint(Sketcher.Constraint("DistanceY", 0, 3, -1, 1, Q("24 mm")))
sketch11.addConstraint(Sketcher.Constraint("DistanceX", 4, 3, -1, 1, Q("20 mm")))
sketch11.addConstraint(Sketcher.Constraint("DistanceY", 4, 3, -1, 1, Q("9 mm")))
sketch11.setExpression("Constraints[14]", "Params.sketch11_radius")
sketch11.setExpression("Constraints[15]", "Params.sketch11_width")
pocket8 = body3.newObject("PartDesign::Pocket", "Pocket007")
pocket8.Profile = sketch11
pocket8.setExpression("Length", "Params.pocket8_length")

sketch12 = body3.newObject("Sketcher::SketchObject", "Sketch011")
sketch12.AttachmentSupport = (doc.getObject("XY_Plane002"), [""])
sketch12.MapMode = "FlatFace"
sketch12.AttachmentOffset = App.Placement(App.Vector(0, 0, -6), App.Rotation())
sketch12.addGeometry(Part.ArcOfCircle(Part.Circle(App.Vector(35, -24, 0), App.Vector(0, 0, 1), 2), math.radians(180), math.radians(360)), False)
sketch12.addGeometry(Part.LineSegment(App.Vector(37, -24, 0), App.Vector(37, -4, 0)), False)
sketch12.addGeometry(Part.ArcOfCircle(Part.Circle(App.Vector(35, -4, 0), App.Vector(0, 0, 1), 2), math.radians(0), math.radians(180)), False)
sketch12.addGeometry(Part.LineSegment(App.Vector(33, -4, 0), App.Vector(33, -24, 0)), False)
sketch12.addGeometry(Part.ArcOfCircle(Part.Circle(App.Vector(-20, -9, 0), App.Vector(0, 0, 1), 2), math.radians(-90), math.radians(90)), False)
sketch12.addGeometry(Part.LineSegment(App.Vector(-20, -7, 0), App.Vector(-40, -7, 0)), False)
sketch12.addGeometry(Part.ArcOfCircle(Part.Circle(App.Vector(-40, -9, 0), App.Vector(0, 0, 1), 2), math.radians(90), math.radians(270)), False)
sketch12.addGeometry(Part.LineSegment(App.Vector(-40, -11, 0), App.Vector(-20, -11, 0)), False)
sketch12.addGeometry(Part.ArcOfCircle(Part.Circle(App.Vector(0, 13, 0), App.Vector(0, 0, 1), 11.2), math.radians(0), math.radians(180)), False)
sketch12.addGeometry(Part.LineSegment(App.Vector(-11.2, 13, 0), App.Vector(-11.2, -17.9, 0)), False)
sketch12.addGeometry(Part.ArcOfCircle(Part.Circle(App.Vector(0, -17.9, 0), App.Vector(0, 0, 1), 11.2), math.radians(180), math.radians(360)), False)
sketch12.addGeometry(Part.LineSegment(App.Vector(11.2, -17.9, 0), App.Vector(11.2, 13, 0)), False)
sketch12.addConstraint(Sketcher.Constraint("Tangent", 0, 2, 1, 1))
sketch12.addConstraint(Sketcher.Constraint("Tangent", 1, 2, 2, 1))
sketch12.addConstraint(Sketcher.Constraint("Tangent", 2, 2, 3, 1))
sketch12.addConstraint(Sketcher.Constraint("Tangent", 3, 2, 0, 1))
sketch12.addConstraint(Sketcher.Constraint("Tangent", 4, 2, 5, 1))
sketch12.addConstraint(Sketcher.Constraint("Tangent", 5, 2, 6, 1))
sketch12.addConstraint(Sketcher.Constraint("Tangent", 6, 2, 7, 1))
sketch12.addConstraint(Sketcher.Constraint("Tangent", 7, 2, 4, 1))
sketch12.addConstraint(Sketcher.Constraint("Tangent", 8, 2, 9, 1))
sketch12.addConstraint(Sketcher.Constraint("Tangent", 9, 2, 10, 1))
sketch12.addConstraint(Sketcher.Constraint("Tangent", 10, 2, 11, 1))
sketch12.addConstraint(Sketcher.Constraint("Tangent", 11, 2, 8, 1))
sketch12.addConstraint(Sketcher.Constraint("Vertical", 1))
sketch12.addConstraint(Sketcher.Constraint("Vertical", 3))
sketch12.addConstraint(Sketcher.Constraint("Horizontal", 5))
sketch12.addConstraint(Sketcher.Constraint("Horizontal", 7))
sketch12.addConstraint(Sketcher.Constraint("Vertical", 9))
sketch12.addConstraint(Sketcher.Constraint("Vertical", 11))
sketch12.addConstraint(Sketcher.Constraint("Equal", 2, 4))
sketch12.addConstraint(Sketcher.Constraint("PointOnObject", 8, 3, -2))
sketch12.addConstraint(Sketcher.Constraint("Equal", 7, 1))
sketch12.addConstraint(Sketcher.Constraint("Radius", 0, Q("2 mm")))
sketch12.addConstraint(Sketcher.Constraint("DistanceX", 5, 2, 5, 1, Q("20 mm")))
sketch12.addConstraint(Sketcher.Constraint("DistanceX", -1, 1, 0, 3, Q("35 mm")))
sketch12.addConstraint(Sketcher.Constraint("DistanceY", 0, 3, -1, 1, Q("24 mm")))
sketch12.addConstraint(Sketcher.Constraint("DistanceX", 4, 3, -1, 1, Q("20 mm")))
sketch12.addConstraint(Sketcher.Constraint("DistanceY", 4, 3, -1, 1, Q("9 mm")))
sketch12.addConstraint(Sketcher.Constraint("Radius", 8, Q("11.172499 mm")))
sketch12.addConstraint(Sketcher.Constraint("DistanceY", 9, 2, 9, 1, Q("30.880709 mm")))
sketch12.addConstraint(Sketcher.Constraint("DistanceY", -1, 1, 8, 3, Q("13.001894 mm")))
sketch12.setExpression("Constraints[21]", "Params.sketch12_radius")
sketch12.setExpression("Constraints[22]", "Params.sketch12_width")
pocket9 = body3.newObject("PartDesign::Pocket", "Pocket008")
pocket9.Profile = sketch12
pocket9.Type = "ThroughAll"

doc.recompute()
